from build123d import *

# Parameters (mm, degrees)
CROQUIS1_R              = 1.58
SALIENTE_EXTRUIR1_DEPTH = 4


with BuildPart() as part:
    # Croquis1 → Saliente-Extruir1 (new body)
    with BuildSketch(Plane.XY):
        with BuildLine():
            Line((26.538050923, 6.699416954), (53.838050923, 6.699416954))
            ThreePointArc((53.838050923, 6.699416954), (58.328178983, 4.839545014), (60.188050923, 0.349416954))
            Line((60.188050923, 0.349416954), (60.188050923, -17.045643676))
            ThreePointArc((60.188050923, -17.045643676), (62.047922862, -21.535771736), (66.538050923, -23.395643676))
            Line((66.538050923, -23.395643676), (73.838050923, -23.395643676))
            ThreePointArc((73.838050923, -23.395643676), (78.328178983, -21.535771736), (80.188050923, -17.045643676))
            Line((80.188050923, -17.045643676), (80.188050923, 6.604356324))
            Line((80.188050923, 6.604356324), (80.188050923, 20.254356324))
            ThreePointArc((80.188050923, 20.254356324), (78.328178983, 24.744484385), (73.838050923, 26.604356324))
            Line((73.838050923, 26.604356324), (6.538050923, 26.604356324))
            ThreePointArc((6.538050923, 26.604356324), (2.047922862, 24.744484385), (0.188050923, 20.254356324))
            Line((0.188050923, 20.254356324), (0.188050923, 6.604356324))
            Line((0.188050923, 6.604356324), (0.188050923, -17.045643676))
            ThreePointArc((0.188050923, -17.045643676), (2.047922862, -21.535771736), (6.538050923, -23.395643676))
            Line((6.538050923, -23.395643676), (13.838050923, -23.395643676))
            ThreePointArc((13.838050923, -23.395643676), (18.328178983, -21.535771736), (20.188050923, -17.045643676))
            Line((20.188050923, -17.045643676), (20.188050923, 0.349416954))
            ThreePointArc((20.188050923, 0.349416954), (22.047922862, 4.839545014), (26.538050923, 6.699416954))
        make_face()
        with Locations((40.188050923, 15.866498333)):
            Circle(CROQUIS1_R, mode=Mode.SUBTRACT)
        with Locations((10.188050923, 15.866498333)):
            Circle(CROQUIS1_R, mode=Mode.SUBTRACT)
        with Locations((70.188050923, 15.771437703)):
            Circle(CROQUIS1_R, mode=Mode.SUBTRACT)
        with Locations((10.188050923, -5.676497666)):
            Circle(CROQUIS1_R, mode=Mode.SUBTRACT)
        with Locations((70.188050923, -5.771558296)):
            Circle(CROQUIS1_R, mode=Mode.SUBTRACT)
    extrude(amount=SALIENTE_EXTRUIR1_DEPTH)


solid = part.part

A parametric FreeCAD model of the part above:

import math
import FreeCAD as App
import Part
import Sketcher
from FreeCAD import Vector

doc = App.newDocument("Part")
body = doc.addObject("PartDesign::Body", "Body")

# Sketch on XY plane
sketch1 = body.newObject("Sketcher::SketchObject", "Sketch")
sketch1.AttachmentSupport = (doc.getObject("XY_Plane"), [""])
sketch1.MapMode = "FlatFace"
sketch1.addGeometry([
    Part.LineSegment(Vector(26.5, 6.7, 0), Vector(53.8, 6.7, 0)),  # 0
    Part.ArcOfCircle(Part.Circle(Vector(53.8, 0.3, 0), Vector(0, 0, 1), 6.4), math.radians(0), math.radians(90)),  # 1
    Part.LineSegment(Vector(60.2, 0.3, 0), Vector(60.2, -17, 0)),  # 2
    Part.ArcOfCircle(Part.Circle(Vector(66.5, -17, 0), Vector(0, 0, 1), 6.3), math.radians(180), math.radians(270)),  # 3
    Part.LineSegment(Vector(66.5, -23.4, 0), Vector(73.8, -23.4, 0)),  # 4
    Part.ArcOfCircle(Part.Circle(Vector(73.8, -17, 0), Vector(0, 0, 1), 6.4), math.radians(-90), math.radians(0)),  # 5
    Part.LineSegment(Vector(80.2, -17, 0), Vector(80.2, 20.3, 0)),  # 6
    Part.ArcOfCircle(Part.Circle(Vector(73.8, 20.3, 0), Vector(0, 0, 1), 6.3), math.radians(0), math.radians(90)),  # 7
    Part.LineSegment(Vector(73.8, 26.6, 0), Vector(6.5, 26.6, 0)),  # 8
    Part.ArcOfCircle(Part.Circle(Vector(6.5, 20.3, 0), Vector(0, 0, 1), 6.3), math.radians(90), math.radians(180)),  # 9
    Part.LineSegment(Vector(0.2, 20.3, 0), Vector(0.2, -17, 0)),  # 10
    Part.ArcOfCircle(Part.Circle(Vector(6.5, -17, 0), Vector(0, 0, 1), 6.3), math.radians(180), math.radians(270)),  # 11
    Part.LineSegment(Vector(6.5, -23.4, 0), Vector(13.8, -23.4, 0)),  # 12
    Part.ArcOfCircle(Part.Circle(Vector(13.8, -17, 0), Vector(0, 0, 1), 6.4), math.radians(-90), math.radians(0)),  # 13
    Part.LineSegment(Vector(20.2, -17, 0), Vector(20.2, 0.3, 0)),  # 14
    Part.ArcOfCircle(Part.Circle(Vector(26.5, 0.3, 0), Vector(0, 0, 1), 6.3), math.radians(90), math.radians(180)),  # 15
    Part.Circle(Vector(10.2, -5.7, 0), Vector(0, 0, 1), 1.6),  # 16
    Part.Circle(Vector(70.2, -5.8, 0), Vector(0, 0, 1), 1.6),  # 17
    Part.Circle(Vector(10.2, 15.9, 0), Vector(0, 0, 1), 1.6),  # 18
    Part.Circle(Vector(40.2, 15.9, 0), Vector(0, 0, 1), 1.6),  # 19
    Part.Circle(Vector(70.2, 15.8, 0), Vector(0, 0, 1), 1.6),  # 20
], False)
sketch1.addConstraint([
    Sketcher.Constraint("Tangent", 0, 2, 1, 2),
    Sketcher.Constraint("Tangent", 1, 1, 2, 1),
    Sketcher.Constraint("Tangent", 2, 2, 3, 1),
    Sketcher.Constraint("Tangent", 3, 2, 4, 1),
    Sketcher.Constraint("Tangent", 4, 2, 5, 1),
    Sketcher.Constraint("Tangent", 5, 2, 6, 1),
    Sketcher.Constraint("Tangent", 6, 2, 7, 1),
    Sketcher.Constraint("Tangent", 7, 2, 8, 1),
    Sketcher.Constraint("Tangent", 8, 2, 9, 1),
    Sketcher.Constraint("Tangent", 9, 2, 10, 1),
    Sketcher.Constraint("Tangent", 10, 2, 11, 1),
    Sketcher.Constraint("Tangent", 11, 2, 12, 1),
    Sketcher.Constraint("Tangent", 12, 2, 13, 1),
    Sketcher.Constraint("Tangent", 13, 2, 14, 1),
    Sketcher.Constraint("Tangent", 14, 2, 15, 2),
    Sketcher.Constraint("Tangent", 15, 1, 0, 1),
    Sketcher.Constraint("Horizontal", 0),
    Sketcher.Constraint("Vertical", 2),
    Sketcher.Constraint("Horizontal", 4),
    Sketcher.Constraint("Vertical", 6),
    Sketcher.Constraint("Horizontal", 8),
    Sketcher.Constraint("Vertical", 10),
    Sketcher.Constraint("Horizontal", 12),
    Sketcher.Constraint("Vertical", 14),
    Sketcher.Constraint("Equal", 1, 3),
    Sketcher.Constraint("Equal", 3, 5),
    Sketcher.Constraint("Equal", 5, 7),
    Sketcher.Constraint("Equal", 7, 9),
    Sketcher.Constraint("Equal", 9, 11),
    Sketcher.Constraint("Equal", 11, 13),
    Sketcher.Constraint("Equal", 13, 15),
    Sketcher.Constraint("Equal", 16, 17),
    Sketcher.Constraint("Equal", 17, 18),
    Sketcher.Constraint("Equal", 18, 19),
    Sketcher.Constraint("Equal", 19, 20),
    Sketcher.Constraint("Horizontal", 5, 3, 11, 3),
    Sketcher.Constraint("Horizontal", 18, 3, 19, 3),
    Sketcher.Constraint("Vertical", 16, 3, 18, 3),
    Sketcher.Constraint("Vertical", 17, 3, 20, 3),
    Sketcher.Constraint("Equal", 4, 12),
    Sketcher.Constraint("Diameter", 16, 3.16),
    Sketcher.Constraint("Radius", 1, 6.35),
    Sketcher.Constraint("DistanceX", 0, 1, 0, 2, 27.3),
    Sketcher.Constraint("DistanceX", 4, 1, 4, 2, 7.3),
    Sketcher.Constraint("DistanceY", 6, 1, 6, 2, 37.3),
    Sketcher.Constraint("DistanceX", 18, 3, 19, 3, 30.0),
    Sketcher.Constraint("DistanceX", 19, 3, 20, 3, 30.0),
    Sketcher.Constraint("DistanceX", 1, 1, 17, 3, 10.0),
    Sketcher.Constraint("DistanceY", 2, 2, 2, 1, 17.395061),
    Sketcher.Constraint("DistanceY", -1, 1, 18, 3, 15.866498),
    Sketcher.Constraint("DistanceX", -1, 1, 1, 3, 53.838051),
    Sketcher.Constraint("DistanceY", 17, 3, -1, 1, 5.771558),
    Sketcher.Constraint("DistanceY", 15, 3, 18, 3, 15.517081),
    Sketcher.Constraint("DistanceY", 20, 3, 7, 3, 4.482919),
    Sketcher.Constraint("DistanceY", 16, 3, -1, 1, 5.676498),
])
pad1 = body.newObject("PartDesign::Pad", "Pad")
pad1.Profile = sketch1
pad1.Length = 4

doc.recompute()
